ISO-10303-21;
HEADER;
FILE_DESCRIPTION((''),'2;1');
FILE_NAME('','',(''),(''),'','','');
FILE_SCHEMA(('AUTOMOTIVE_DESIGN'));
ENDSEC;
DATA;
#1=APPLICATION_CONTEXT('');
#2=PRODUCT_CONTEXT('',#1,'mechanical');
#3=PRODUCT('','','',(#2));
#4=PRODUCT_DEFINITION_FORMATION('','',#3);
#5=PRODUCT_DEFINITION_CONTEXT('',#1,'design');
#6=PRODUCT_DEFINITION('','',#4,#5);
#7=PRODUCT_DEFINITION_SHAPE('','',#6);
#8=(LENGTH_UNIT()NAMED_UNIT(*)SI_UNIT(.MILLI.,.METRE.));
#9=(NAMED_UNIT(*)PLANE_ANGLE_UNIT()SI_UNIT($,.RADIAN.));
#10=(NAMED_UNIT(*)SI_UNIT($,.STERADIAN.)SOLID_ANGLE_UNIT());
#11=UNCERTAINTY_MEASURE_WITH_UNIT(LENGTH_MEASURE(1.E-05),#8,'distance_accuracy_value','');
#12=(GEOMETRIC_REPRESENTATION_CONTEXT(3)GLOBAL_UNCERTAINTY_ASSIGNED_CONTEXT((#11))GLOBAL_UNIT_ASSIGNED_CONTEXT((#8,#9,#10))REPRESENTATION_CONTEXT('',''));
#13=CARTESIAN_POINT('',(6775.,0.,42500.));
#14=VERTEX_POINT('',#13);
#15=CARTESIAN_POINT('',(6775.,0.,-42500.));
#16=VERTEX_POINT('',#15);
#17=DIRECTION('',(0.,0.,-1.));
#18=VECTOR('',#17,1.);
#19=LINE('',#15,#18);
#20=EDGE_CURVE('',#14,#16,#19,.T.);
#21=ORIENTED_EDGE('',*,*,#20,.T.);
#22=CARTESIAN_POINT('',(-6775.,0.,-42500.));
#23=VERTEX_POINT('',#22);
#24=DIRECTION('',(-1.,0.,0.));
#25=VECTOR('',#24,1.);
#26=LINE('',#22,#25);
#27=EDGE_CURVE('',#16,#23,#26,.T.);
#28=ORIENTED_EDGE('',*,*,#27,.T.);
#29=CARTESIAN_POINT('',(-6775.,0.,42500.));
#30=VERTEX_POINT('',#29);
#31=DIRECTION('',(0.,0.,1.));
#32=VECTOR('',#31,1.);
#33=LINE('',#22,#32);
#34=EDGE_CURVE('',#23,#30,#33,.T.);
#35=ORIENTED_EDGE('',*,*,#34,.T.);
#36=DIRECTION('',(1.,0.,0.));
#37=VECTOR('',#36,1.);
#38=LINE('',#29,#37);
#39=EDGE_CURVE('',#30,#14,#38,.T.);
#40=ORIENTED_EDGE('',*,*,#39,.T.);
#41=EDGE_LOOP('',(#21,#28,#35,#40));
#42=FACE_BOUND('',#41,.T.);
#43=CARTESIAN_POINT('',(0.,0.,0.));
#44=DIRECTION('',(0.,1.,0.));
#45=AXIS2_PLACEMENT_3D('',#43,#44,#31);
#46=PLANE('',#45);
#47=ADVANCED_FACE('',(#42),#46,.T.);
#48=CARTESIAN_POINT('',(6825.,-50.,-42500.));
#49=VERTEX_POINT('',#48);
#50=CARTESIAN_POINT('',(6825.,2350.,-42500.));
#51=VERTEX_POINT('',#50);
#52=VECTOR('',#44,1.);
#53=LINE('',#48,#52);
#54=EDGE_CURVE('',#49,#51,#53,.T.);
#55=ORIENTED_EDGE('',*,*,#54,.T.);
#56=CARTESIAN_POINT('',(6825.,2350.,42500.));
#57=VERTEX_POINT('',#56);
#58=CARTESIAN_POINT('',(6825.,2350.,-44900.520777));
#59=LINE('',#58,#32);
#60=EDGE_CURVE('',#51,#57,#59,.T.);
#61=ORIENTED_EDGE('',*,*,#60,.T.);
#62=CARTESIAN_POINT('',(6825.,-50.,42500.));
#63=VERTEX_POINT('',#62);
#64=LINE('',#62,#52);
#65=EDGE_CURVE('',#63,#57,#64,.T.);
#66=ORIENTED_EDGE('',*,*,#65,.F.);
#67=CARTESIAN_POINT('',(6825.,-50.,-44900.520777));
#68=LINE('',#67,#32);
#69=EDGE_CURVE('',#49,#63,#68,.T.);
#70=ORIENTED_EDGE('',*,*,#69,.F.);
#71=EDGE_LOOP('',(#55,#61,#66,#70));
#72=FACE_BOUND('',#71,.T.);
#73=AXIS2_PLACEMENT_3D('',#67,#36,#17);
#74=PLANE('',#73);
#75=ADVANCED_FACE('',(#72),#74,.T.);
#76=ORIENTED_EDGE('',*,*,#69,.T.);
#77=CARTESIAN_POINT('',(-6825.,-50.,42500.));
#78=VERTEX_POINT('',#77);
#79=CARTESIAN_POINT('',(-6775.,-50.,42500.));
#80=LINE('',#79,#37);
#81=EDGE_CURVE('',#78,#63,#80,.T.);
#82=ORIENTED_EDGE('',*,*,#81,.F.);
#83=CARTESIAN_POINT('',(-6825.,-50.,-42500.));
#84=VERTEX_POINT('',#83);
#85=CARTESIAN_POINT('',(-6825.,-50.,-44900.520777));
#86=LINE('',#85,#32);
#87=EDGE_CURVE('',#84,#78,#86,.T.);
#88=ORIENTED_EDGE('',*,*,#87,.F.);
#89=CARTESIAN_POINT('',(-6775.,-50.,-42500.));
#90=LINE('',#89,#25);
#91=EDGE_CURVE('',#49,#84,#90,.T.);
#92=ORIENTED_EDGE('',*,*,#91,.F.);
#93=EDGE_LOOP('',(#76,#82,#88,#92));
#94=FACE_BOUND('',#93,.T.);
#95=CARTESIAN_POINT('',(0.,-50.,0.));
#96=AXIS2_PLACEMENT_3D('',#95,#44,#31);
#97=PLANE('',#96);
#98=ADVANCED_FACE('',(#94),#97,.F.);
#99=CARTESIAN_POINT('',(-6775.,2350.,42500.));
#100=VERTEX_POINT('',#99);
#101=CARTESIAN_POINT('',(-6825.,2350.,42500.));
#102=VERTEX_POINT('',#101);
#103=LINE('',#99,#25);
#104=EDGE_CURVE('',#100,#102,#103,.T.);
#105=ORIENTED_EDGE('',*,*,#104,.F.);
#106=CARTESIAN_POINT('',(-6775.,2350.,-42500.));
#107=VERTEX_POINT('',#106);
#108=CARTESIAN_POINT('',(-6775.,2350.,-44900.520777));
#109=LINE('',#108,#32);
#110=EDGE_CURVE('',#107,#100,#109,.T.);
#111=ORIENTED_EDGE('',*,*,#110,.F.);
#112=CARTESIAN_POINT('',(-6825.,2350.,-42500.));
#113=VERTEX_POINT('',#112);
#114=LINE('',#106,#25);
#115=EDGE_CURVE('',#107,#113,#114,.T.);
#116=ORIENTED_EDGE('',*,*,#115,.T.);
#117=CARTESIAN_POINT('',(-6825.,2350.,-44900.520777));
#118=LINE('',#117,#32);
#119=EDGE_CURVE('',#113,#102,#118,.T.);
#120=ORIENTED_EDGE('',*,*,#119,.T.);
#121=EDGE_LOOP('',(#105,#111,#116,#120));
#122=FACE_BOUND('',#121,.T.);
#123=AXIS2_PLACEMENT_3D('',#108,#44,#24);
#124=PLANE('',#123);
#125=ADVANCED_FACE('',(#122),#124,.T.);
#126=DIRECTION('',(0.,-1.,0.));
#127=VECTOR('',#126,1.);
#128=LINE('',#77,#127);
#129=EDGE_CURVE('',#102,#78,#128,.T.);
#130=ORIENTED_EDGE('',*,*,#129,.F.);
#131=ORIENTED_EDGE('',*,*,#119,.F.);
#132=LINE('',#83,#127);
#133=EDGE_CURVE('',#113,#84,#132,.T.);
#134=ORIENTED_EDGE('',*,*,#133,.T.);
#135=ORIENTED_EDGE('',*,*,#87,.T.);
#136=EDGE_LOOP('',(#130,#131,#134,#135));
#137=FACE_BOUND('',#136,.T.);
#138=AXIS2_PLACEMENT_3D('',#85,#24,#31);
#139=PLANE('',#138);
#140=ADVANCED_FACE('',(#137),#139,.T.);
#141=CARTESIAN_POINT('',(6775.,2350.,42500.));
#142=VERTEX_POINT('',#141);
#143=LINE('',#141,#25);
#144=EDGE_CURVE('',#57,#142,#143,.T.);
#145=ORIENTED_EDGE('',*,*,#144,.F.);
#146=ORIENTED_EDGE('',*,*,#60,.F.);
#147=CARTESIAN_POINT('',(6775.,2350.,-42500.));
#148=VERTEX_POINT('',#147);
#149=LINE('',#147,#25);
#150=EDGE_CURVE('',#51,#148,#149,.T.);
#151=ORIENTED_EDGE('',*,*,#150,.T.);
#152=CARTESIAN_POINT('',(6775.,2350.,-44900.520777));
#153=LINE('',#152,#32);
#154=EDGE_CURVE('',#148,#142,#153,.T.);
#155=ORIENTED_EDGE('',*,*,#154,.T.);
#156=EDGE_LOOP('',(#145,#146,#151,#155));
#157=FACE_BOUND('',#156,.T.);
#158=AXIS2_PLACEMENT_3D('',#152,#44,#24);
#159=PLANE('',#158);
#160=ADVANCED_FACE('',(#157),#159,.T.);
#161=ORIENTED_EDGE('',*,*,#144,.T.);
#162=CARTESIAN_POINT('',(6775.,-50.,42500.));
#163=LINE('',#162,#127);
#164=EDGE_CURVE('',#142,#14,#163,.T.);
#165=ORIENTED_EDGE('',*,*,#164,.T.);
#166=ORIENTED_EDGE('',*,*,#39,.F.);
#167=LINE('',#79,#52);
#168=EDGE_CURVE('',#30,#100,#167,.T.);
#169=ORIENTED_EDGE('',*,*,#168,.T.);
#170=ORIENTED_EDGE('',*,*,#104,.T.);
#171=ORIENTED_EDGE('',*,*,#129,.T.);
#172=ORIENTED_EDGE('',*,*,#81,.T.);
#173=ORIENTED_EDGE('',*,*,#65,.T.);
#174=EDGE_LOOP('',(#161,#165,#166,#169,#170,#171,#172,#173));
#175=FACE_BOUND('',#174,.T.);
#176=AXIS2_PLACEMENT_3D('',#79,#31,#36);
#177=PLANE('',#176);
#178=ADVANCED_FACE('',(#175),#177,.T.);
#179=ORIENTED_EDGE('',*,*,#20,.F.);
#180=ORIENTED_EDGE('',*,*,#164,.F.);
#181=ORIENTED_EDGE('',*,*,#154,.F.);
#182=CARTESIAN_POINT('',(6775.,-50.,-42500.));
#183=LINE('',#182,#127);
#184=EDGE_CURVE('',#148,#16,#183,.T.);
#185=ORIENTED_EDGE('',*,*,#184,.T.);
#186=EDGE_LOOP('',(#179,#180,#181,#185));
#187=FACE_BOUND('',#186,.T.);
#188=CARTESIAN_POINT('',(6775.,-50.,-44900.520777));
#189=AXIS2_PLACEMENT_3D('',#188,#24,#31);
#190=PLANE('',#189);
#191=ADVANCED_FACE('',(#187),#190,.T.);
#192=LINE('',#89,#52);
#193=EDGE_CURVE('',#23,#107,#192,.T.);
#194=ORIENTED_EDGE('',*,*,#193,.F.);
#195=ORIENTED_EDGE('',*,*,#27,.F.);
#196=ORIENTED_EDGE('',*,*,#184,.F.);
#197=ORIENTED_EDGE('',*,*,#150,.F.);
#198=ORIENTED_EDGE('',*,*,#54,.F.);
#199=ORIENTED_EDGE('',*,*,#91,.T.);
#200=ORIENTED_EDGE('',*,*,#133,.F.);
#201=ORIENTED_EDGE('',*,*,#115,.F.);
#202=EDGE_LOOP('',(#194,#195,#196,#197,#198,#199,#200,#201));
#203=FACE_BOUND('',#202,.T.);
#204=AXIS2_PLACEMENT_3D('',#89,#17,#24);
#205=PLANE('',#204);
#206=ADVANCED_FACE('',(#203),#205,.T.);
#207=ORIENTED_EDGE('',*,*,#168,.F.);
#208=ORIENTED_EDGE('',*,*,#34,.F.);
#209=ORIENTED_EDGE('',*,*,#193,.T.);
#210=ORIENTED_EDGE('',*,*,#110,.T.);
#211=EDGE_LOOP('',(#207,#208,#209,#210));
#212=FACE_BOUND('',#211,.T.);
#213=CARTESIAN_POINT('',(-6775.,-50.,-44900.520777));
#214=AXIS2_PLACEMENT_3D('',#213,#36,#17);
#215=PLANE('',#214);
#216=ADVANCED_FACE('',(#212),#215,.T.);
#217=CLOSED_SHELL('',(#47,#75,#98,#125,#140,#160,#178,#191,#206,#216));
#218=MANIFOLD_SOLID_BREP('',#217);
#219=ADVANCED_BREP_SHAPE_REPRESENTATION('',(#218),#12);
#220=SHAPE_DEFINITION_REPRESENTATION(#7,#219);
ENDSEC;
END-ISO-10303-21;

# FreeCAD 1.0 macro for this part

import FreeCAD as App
import Part
import Sketcher
from FreeCAD import Vector

doc = App.newDocument("Part")
params = doc.addObject("Spreadsheet::Sheet", "Params")
for row, (alias, value) in enumerate([
    ("sketch1_width", "13550 mm"),
    ("sketch1_height", "85000 mm"),
    ("pad1_length", "50 mm"),
    ("sketch2_width", "50 mm"),
    ("sketch2_height", "2400 mm"),
    ("pad2_length", "85000 mm"),
], start=1):
    params.set(f"A{row}", alias)
    params.set(f"B{row}", "=" + value)
    params.setAlias(f"B{row}", alias)

body = doc.addObject("PartDesign::Body", "Body")

# Sketch on XZ plane
sketch1 = body.newObject("Sketcher::SketchObject", "Sketch")
sketch1.AttachmentSupport = (doc.getObject("XZ_Plane"), [""])
sketch1.MapMode = "FlatFace"
sketch1.addGeometry([
    Part.LineSegment(Vector(-6775, -42500, 0), Vector(-6775, 42500, 0)),
    Part.LineSegment(Vector(-6775, 42500, 0), Vector(6775, 42500, 0)),
    Part.LineSegment(Vector(6775, 42500, 0), Vector(6775, -42500, 0)),
    Part.LineSegment(Vector(6775, -42500, 0), Vector(-6775, -42500, 0)),
], False)
sketch1.addConstraint([
    Sketcher.Constraint("Coincident", 0, 2, 1, 1),
    Sketcher.Constraint("Coincident", 1, 2, 2, 1),
    Sketcher.Constraint("Coincident", 2, 2, 3, 1),
    Sketcher.Constraint("Coincident", 3, 2, 0, 1),
    Sketcher.Constraint("Vertical", 0),
    Sketcher.Constraint("Horizontal", 1),
    Sketcher.Constraint("Vertical", 2),
    Sketcher.Constraint("Horizontal", 3),
    Sketcher.Constraint("Symmetric", 0, 2, 2, 2, -1, 1),
    Sketcher.Constraint("DistanceX", 1, 1, 1, 2, 13550.0),
    Sketcher.Constraint("DistanceY", 0, 1, 0, 2, 85000.0),
])
sketch1.setExpression("Constraints[9]", "Params.sketch1_width")
sketch1.setExpression("Constraints[10]", "Params.sketch1_height")
pad1 = body.newObject("PartDesign::Pad", "Pad")
pad1.Profile = sketch1
pad1.setExpression("Length", "Params.pad1_length")

# Sketch on XY plane
sketch2 = body.newObject("Sketcher::SketchObject", "Sketch001")
sketch2.AttachmentSupport = (doc.getObject("XY_Plane"), [""])
sketch2.MapMode = "FlatFace"
sketch2.AttachmentOffset = App.Placement(Vector(0, 0, 42500), App.Rotation())
sketch2.addGeometry([
    Part.LineSegment(Vector(-6825, 2350, 0), Vector(-6825, -50, 0)),  # 0
    Part.LineSegment(Vector(-6825, -50, 0), Vector(-6775, -50, 0)),  # 1
    Part.LineSegment(Vector(-6775, -50, 0), Vector(-6775, 2350, 0)),  # 2
    Part.LineSegment(Vector(-6775, 2350, 0), Vector(-6825, 2350, 0)),  # 3
    Part.LineSegment(Vector(6775, 2350, 0), Vector(6775, -50, 0)),  # 4
    Part.LineSegment(Vector(6775, -50, 0), Vector(6825, -50, 0)),  # 5
    Part.LineSegment(Vector(6825, -50, 0), Vector(6825, 2350, 0)),  # 6
    Part.LineSegment(Vector(6825, 2350, 0), Vector(6775, 2350, 0)),  # 7
], False)
sketch2.addConstraint([
    Sketcher.Constraint("Coincident", 0, 2, 1, 1),
    Sketcher.Constraint("Coincident", 1, 2, 2, 1),
    Sketcher.Constraint("Coincident", 2, 2, 3, 1),
    Sketcher.Constraint("Coincident", 3, 2, 0, 1),
    Sketcher.Constraint("Coincident", 4, 2, 5, 1),
    Sketcher.Constraint("Coincident", 5, 2, 6, 1),
    Sketcher.Constraint("Coincident", 6, 2, 7, 1),
    Sketcher.Constraint("Coincident", 7, 2, 4, 1),
    Sketcher.Constraint("Vertical", 0),
    Sketcher.Constraint("Horizontal", 1),
    Sketcher.Constraint("Vertical", 2),
    Sketcher.Constraint("Horizontal", 3),
    Sketcher.Constraint("Vertical", 4),
    Sketcher.Constraint("Horizontal", 5),
    Sketcher.Constraint("Vertical", 6),
    Sketcher.Constraint("Horizontal", 7),
    Sketcher.Constraint("Symmetric", 1, 2, 4, 2, -2),
    Sketcher.Constraint("Symmetric", 3, 2, 6, 2, -2),
    Sketcher.Constraint("DistanceX", 1, 1, 1, 2, 50.0),
    Sketcher.Constraint("DistanceY", 0, 2, 0, 1, 2400.0),
    Sketcher.Constraint("DistanceX", 0, 2, -1, 1, 6825.0),
    Sketcher.Constraint("DistanceY", 0, 2, -1, 1, 50.0),
])
sketch2.setExpression("Constraints[18]", "Params.sketch2_width")
sketch2.setExpression("Constraints[19]", "Params.sketch2_height")
pad2 = body.newObject("PartDesign::Pad", "Pad001")
pad2.Profile = sketch2
pad2.setExpression("Length", "Params.pad2_length")
pad2.Reversed = True

doc.recompute()
